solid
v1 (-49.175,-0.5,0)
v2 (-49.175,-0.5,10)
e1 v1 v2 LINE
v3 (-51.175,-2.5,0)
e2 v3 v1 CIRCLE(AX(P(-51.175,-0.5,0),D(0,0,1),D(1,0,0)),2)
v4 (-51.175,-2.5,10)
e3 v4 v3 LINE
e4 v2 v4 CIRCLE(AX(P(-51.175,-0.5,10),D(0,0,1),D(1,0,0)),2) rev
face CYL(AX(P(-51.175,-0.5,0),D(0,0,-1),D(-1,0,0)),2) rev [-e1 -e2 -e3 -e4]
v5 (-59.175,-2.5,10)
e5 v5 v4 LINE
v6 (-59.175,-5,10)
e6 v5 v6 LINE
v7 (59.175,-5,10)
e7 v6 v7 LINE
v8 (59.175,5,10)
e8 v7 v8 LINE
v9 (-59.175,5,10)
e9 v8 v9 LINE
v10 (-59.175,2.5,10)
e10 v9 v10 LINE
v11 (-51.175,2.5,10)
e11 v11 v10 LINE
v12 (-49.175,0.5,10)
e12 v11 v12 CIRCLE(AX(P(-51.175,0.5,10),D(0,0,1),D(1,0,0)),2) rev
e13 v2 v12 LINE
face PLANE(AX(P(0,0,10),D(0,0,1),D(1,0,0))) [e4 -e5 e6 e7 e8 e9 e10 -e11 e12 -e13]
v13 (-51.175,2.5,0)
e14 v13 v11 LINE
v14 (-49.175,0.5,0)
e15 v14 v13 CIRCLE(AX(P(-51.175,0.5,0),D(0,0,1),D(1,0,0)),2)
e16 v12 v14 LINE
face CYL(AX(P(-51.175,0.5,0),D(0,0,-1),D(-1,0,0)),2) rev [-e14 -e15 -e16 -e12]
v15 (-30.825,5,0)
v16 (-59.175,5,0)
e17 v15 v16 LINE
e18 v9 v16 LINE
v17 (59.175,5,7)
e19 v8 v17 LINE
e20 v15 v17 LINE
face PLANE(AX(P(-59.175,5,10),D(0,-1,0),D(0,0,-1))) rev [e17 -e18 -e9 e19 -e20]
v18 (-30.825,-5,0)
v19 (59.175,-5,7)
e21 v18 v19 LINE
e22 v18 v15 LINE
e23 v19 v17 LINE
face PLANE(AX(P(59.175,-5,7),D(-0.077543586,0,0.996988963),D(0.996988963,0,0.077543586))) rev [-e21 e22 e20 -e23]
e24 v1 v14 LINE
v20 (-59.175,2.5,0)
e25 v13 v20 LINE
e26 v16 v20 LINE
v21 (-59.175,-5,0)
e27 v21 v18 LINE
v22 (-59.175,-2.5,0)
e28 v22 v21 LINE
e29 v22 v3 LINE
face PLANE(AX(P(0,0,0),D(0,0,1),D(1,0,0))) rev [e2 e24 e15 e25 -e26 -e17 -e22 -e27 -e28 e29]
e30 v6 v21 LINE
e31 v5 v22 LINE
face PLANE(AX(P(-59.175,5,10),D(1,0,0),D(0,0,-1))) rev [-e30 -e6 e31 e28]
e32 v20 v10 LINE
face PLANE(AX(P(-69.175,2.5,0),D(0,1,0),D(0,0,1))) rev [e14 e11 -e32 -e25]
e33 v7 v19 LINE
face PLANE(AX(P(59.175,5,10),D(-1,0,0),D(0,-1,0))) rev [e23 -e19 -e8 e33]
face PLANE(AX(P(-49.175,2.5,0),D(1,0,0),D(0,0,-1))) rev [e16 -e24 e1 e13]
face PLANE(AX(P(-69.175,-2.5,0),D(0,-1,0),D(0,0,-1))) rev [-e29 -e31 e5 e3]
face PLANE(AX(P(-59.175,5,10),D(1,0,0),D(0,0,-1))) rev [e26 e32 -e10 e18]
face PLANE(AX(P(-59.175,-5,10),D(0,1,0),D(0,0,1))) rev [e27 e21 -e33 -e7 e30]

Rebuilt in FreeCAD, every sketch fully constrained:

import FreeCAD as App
import Part
import Sketcher

V = App.Vector
Q = App.Units.Quantity


def edges_at(feature, points):
    """Names of the edges that pass closest to the given points."""
    edges = feature.Shape.Edges
    near = lambda p: min(range(len(edges)), key=lambda i: edges[i].distToShape(Part.Vertex(*p))[0])
    return sorted({f"Edge{near(p) + 1}" for p in points})


def add_polygon(sketch, points):
    """Adds a closed chain of lines whose ends are joined by coincident constraints."""
    first, n = sketch.GeometryCount, len(points)
    for a, b in zip(points, points[1:] + points[:1]):
        sketch.addGeometry(Part.LineSegment(App.Vector(*a, 0), App.Vector(*b, 0)), False)
    for i in range(n):
        sketch.addConstraint(Sketcher.Constraint("Coincident", first + i, 2, first + (i + 1) % n, 1))

doc = App.newDocument("Part")
body = doc.addObject("PartDesign::Body", "Body")

sketch1 = body.newObject("Sketcher::SketchObject", "Sketch")
sketch1.AttachmentSupport = (doc.getObject("XY_Plane"), [""])
sketch1.MapMode = "FlatFace"
add_polygon(sketch1, [(-59, 5), (-59, -5), (59, -5), (59, 5)])
sketch1.addConstraint([
    Sketcher.Constraint("Vertical", 0),
    Sketcher.Constraint("Horizontal", 1),
    Sketcher.Constraint("Vertical", 2),
    Sketcher.Constraint("Horizontal", 3),
    Sketcher.Constraint("Symmetric", 0, 2, 2, 2, -1, 1),
    Sketcher.Constraint("DistanceY", 0, 2, 0, 1, Q("10 mm")),
    Sketcher.Constraint("DistanceX", 1, 1, 1, 2, Q("118.35 mm")),
])
pad1 = body.newObject("PartDesign::Pad", "Pad")
pad1.Profile = sketch1
pad1.Length = 10

sketch2 = body.newObject("Sketcher::SketchObject", "Sketch001")
sketch2.AttachmentSupport = (doc.getObject("XY_Plane"), [""])
sketch2.MapMode = "FlatFace"
sketch2.AttachmentOffset = App.Placement(V(0, 0, 10), App.Rotation())
add_polygon(sketch2, [(-69, 2), (-69, -2), (-49, -2), (-49, 2)])
sketch2.addConstraint([
    Sketcher.Constraint("Vertical", 0),
    Sketcher.Constraint("Horizontal", 1),
    Sketcher.Constraint("Vertical", 2),
    Sketcher.Constraint("Horizontal", 3),
    Sketcher.Constraint("DistanceX", 1, 1, 1, 2, Q("20 mm")),
    Sketcher.Constraint("DistanceY", 0, 2, 0, 1, Q("5 mm")),
    Sketcher.Constraint("DistanceY", 0, 2, -1, 1, Q("2.5 mm")),
    Sketcher.Constraint("DistanceX", 0, 2, -1, 1, Q("69.175 mm")),
])
pocket1 = body.newObject("PartDesign::Pocket", "Pocket")
pocket1.Profile = sketch2
pocket1.Type = "ThroughAll"

sketch3 = body.newObject("Sketcher::SketchObject", "Sketch002")
sketch3.AttachmentSupport = (doc.getObject("XZ_Plane"), [""])
sketch3.MapMode = "FlatFace"
sketch3.AttachmentOffset = App.Placement(V(0, 0, -5), App.Rotation())
add_polygon(sketch3, [(-31, 0), (59, 7), (59, 0)])
sketch3.addConstraint([
    Sketcher.Constraint("Vertical", 1),
    Sketcher.Constraint("Horizontal", 2),
    Sketcher.Constraint("PointOnObject", 1, 2, -1),
    Sketcher.Constraint("DistanceX", 2, 2, 2, 1, Q("90 mm")),
    Sketcher.Constraint("DistanceY", 1, 2, 1, 1, Q("7 mm")),
    Sketcher.Constraint("DistanceX", -1, 1, 0, 2, Q("59.175 mm")),
])
pocket2 = body.newObject("PartDesign::Pocket", "Pocket001")
pocket2.Profile = sketch3
pocket2.Type = "ThroughAll"
pocket2.Reversed = True
doc.recompute()

fillet = body.newObject("PartDesign::Fillet", "Fillet")
fillet.Base = (pocket2, edges_at(pocket2, [(-49.175, -2.5, 5), (-49.175, 2.5, 5)]))
fillet.Radius = 2

doc.recompute()
